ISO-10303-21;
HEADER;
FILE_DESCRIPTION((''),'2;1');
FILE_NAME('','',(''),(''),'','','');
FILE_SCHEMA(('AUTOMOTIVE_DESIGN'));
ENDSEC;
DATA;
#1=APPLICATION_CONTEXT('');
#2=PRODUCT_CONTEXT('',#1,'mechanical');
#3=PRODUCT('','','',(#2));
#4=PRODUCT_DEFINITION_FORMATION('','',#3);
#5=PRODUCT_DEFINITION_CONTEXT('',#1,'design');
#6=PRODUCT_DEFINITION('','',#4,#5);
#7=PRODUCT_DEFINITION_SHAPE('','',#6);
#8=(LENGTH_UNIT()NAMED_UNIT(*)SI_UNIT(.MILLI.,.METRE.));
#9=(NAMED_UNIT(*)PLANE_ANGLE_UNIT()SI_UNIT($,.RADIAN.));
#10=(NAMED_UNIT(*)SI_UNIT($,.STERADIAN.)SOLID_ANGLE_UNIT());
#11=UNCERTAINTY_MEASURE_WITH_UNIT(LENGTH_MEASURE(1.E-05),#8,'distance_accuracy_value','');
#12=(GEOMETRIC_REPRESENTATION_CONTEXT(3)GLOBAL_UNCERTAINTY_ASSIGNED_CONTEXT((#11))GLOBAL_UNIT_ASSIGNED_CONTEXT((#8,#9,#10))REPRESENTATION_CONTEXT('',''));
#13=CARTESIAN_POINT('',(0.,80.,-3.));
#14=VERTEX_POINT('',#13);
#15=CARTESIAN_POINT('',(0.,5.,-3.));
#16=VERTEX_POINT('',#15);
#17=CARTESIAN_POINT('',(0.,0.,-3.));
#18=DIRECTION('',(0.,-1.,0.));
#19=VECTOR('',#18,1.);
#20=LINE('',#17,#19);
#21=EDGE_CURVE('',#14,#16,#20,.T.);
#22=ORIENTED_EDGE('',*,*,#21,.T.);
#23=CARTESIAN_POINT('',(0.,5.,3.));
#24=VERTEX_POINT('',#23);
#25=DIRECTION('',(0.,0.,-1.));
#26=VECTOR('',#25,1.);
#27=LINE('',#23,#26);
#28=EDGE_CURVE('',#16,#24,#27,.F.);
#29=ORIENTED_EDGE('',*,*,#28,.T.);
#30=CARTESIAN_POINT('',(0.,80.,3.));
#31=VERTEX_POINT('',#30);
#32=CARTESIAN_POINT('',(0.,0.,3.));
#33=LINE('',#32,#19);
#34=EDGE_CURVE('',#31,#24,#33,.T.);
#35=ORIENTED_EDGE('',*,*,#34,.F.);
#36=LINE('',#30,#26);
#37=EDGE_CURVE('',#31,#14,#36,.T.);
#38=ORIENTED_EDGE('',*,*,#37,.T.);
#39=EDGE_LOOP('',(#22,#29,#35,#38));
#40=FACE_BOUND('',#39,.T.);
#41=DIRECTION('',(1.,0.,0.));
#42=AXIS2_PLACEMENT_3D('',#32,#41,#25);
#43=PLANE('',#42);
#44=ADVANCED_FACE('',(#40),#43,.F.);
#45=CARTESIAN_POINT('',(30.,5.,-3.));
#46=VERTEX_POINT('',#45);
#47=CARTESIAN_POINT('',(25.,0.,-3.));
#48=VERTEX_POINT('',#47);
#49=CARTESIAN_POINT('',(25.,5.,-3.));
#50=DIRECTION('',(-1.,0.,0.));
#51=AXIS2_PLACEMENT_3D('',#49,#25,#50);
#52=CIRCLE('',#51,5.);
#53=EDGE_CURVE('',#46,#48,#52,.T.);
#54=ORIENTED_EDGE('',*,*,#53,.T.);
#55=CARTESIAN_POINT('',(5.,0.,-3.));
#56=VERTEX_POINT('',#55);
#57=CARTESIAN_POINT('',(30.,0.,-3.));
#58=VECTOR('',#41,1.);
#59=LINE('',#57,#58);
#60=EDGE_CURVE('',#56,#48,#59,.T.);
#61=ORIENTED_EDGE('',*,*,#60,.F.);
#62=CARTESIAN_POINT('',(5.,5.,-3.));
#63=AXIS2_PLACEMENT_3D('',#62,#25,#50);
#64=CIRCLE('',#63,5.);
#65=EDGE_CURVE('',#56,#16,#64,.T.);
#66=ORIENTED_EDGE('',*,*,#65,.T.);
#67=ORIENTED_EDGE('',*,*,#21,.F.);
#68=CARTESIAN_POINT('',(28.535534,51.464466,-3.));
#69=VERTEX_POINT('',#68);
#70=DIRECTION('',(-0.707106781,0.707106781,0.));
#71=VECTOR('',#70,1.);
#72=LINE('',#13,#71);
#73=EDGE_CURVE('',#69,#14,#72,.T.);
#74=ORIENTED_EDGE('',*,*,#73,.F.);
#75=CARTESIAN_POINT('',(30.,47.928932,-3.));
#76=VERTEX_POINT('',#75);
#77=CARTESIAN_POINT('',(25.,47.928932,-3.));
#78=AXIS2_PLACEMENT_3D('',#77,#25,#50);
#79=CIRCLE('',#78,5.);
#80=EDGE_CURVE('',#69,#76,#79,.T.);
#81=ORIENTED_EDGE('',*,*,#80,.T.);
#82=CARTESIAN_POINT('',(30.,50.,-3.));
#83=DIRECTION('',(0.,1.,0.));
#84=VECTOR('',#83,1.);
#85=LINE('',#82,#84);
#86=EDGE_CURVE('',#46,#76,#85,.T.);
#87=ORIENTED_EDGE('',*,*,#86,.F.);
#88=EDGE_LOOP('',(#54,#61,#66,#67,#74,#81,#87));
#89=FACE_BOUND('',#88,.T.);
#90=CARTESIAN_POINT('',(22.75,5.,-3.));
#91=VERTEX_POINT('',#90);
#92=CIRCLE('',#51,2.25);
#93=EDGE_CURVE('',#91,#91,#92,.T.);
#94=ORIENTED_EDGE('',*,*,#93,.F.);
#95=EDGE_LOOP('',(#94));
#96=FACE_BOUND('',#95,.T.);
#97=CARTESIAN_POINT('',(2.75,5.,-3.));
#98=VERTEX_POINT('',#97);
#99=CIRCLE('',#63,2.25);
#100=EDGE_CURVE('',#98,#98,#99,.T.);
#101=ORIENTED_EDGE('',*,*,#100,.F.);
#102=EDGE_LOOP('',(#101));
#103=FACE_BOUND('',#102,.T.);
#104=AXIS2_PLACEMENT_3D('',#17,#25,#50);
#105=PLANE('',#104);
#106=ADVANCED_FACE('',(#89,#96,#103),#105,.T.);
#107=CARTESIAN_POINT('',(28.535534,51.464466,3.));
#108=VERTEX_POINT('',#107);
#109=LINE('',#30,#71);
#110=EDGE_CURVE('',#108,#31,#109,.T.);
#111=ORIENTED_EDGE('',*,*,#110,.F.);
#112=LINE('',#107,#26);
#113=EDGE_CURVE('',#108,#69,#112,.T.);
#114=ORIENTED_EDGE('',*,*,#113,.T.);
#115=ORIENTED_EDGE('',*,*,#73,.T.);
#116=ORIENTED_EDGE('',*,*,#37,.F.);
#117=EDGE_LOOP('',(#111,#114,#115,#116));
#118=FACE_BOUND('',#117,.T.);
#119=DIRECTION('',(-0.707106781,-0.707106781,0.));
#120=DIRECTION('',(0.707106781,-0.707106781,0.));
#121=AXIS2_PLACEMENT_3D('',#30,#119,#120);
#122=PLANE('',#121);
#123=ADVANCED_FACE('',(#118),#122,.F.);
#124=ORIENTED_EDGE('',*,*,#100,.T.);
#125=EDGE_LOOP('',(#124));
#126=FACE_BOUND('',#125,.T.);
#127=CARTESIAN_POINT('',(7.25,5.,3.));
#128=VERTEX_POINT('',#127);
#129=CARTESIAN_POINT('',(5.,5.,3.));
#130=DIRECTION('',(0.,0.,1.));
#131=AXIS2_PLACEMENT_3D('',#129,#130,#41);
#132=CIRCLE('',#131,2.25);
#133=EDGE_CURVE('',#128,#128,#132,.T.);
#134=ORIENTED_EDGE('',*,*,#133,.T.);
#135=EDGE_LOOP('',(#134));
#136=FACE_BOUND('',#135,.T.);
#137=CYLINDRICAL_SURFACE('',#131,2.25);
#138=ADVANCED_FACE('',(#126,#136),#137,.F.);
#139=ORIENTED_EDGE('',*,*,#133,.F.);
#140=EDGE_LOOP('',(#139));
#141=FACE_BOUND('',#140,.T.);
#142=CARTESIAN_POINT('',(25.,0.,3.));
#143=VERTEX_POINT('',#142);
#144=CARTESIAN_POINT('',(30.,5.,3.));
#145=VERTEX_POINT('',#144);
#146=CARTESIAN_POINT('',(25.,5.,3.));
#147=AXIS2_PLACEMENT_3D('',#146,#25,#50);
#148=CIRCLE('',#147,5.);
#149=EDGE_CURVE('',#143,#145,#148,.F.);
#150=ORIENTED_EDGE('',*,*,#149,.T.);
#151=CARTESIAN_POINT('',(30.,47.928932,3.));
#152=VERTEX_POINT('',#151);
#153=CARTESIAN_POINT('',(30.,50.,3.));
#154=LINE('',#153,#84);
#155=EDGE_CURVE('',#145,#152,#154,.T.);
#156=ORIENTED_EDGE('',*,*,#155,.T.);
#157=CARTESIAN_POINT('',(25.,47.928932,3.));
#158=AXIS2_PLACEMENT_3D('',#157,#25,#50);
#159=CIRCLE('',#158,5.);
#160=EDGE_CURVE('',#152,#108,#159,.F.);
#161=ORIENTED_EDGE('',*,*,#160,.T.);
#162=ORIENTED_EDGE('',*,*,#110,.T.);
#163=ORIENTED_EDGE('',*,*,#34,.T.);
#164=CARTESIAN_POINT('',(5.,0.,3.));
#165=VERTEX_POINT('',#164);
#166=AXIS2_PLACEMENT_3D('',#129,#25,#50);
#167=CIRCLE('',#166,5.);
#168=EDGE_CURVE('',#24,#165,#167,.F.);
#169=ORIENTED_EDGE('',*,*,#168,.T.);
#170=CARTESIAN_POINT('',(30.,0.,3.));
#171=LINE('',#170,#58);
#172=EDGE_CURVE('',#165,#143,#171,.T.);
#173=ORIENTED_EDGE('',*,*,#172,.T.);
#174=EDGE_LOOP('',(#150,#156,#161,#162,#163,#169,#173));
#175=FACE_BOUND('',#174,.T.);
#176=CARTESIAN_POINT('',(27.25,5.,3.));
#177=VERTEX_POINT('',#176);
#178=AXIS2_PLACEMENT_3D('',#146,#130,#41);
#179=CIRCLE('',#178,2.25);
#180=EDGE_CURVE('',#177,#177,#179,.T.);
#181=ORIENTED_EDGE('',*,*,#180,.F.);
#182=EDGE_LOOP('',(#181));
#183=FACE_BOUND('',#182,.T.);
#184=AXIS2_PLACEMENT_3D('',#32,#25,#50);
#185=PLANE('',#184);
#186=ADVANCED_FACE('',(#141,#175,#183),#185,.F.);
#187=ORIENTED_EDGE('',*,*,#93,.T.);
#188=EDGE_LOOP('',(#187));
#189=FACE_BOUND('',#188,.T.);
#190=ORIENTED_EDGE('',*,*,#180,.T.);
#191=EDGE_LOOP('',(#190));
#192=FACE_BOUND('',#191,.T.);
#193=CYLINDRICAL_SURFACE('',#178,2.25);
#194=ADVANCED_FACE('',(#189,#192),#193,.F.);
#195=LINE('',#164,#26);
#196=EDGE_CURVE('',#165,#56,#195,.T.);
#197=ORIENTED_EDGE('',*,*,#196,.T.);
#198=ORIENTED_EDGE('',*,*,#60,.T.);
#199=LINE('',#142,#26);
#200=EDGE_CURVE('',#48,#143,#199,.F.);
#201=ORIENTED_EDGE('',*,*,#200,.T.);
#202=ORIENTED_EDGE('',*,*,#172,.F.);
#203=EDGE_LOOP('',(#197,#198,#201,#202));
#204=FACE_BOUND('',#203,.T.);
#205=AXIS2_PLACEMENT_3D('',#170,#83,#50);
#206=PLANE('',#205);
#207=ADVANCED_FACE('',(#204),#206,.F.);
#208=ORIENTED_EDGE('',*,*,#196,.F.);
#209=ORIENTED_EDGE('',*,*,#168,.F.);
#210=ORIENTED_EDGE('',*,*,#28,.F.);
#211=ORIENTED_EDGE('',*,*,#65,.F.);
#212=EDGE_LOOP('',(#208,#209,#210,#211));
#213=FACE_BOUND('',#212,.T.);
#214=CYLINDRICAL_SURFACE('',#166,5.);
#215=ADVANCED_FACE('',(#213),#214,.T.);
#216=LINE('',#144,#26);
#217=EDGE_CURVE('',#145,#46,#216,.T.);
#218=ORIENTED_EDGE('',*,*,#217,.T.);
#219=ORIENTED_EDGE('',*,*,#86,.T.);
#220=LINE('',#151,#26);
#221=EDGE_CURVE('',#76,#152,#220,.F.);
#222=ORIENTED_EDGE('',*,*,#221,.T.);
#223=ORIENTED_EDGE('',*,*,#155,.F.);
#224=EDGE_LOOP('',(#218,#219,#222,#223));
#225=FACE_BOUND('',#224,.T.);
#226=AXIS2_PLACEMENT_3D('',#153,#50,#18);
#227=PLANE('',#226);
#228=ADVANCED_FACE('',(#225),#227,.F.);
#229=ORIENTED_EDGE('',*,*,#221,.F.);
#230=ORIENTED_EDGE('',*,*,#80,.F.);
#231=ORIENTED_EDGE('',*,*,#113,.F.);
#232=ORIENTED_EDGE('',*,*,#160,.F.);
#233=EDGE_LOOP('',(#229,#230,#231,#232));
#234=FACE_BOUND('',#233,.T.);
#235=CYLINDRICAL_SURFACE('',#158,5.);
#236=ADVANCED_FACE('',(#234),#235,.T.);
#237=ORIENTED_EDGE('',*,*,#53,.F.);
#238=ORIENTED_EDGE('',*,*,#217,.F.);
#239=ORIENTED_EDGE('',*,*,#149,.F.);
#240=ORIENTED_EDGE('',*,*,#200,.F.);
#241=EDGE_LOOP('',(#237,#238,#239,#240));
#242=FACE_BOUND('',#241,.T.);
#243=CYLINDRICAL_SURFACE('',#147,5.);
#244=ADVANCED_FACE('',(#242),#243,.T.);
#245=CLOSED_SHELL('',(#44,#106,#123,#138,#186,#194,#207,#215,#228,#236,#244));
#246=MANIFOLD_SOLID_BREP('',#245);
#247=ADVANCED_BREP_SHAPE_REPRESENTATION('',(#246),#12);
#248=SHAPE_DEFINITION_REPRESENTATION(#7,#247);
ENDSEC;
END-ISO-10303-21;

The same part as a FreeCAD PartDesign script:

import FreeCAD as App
import Part
import Sketcher

V = App.Vector
Q = App.Units.Quantity


def edges_at(feature, points):
    """Names of the edges that pass closest to the given points."""
    edges = feature.Shape.Edges
    near = lambda p: min(range(len(edges)), key=lambda i: edges[i].distToShape(Part.Vertex(*p))[0])
    return sorted({f"Edge{near(p) + 1}" for p in points})

doc = App.newDocument("Part")
params = doc.addObject("Spreadsheet::Sheet", "Params")
for row, (alias, value) in enumerate([
    ("sketch1_width", "30 mm"),
    ("sketch1_height", "80 mm"),
    ("sketch1_height2", "50 mm"),
    ("pad1_length", "6 mm"),
    ("sketch2_diameter", "4.5 mm"),
    ("hole_diameter", "4.5 mm"),
    ("fillet_radius", "5 mm"),
], start=1):
    params.set(f"A{row}", alias)
    params.set(f"B{row}", "=" + value)
    params.setAlias(f"B{row}", alias)

body = doc.addObject("PartDesign::Body", "Body")

sketch1 = body.newObject("Sketcher::SketchObject", "Sketch")
sketch1.AttachmentSupport = (doc.getObject("XY_Plane"), [""])
sketch1.MapMode = "FlatFace"
sketch1.addGeometry([
    Part.LineSegment(V(0, 80, 0), V(0, 0, 0)),
    Part.LineSegment(V(0, 0, 0), V(30, 0, 0)),
    Part.LineSegment(V(30, 0, 0), V(30, 50, 0)),
    Part.LineSegment(V(30, 50, 0), V(0, 80, 0)),
], False)
sketch1.addConstraint([
    Sketcher.Constraint("Coincident", 0, 2, 1, 1),
    Sketcher.Constraint("Coincident", 1, 2, 2, 1),
    Sketcher.Constraint("Coincident", 2, 2, 3, 1),
    Sketcher.Constraint("Coincident", 3, 2, 0, 1),
    Sketcher.Constraint("Vertical", 0),
    Sketcher.Constraint("Horizontal", 1),
    Sketcher.Constraint("Vertical", 2),
    Sketcher.Constraint("Coincident", 0, 2, -1, 1),
    Sketcher.Constraint("DistanceX", 1, 1, 1, 2, Q("30 mm")),
    Sketcher.Constraint("DistanceY", 0, 2, 0, 1, Q("80 mm")),
    Sketcher.Constraint("DistanceY", 2, 1, 2, 2, Q("50 mm")),
])
sketch1.setExpression("Constraints[8]", "Params.sketch1_width")
sketch1.setExpression("Constraints[9]", "Params.sketch1_height")
sketch1.setExpression("Constraints[10]", "Params.sketch1_height2")
pad1 = body.newObject("PartDesign::Pad", "Pad")
pad1.Profile = sketch1
pad1.setExpression("Length", "Params.pad1_length")
pad1.Midplane = True

sketch2 = body.newObject("Sketcher::SketchObject", "Sketch001")
sketch2.AttachmentSupport = (doc.getObject("XY_Plane"), [""])
sketch2.MapMode = "FlatFace"
sketch2.AttachmentOffset = App.Placement(V(0, 0, 3), App.Rotation())
sketch2.addGeometry([
    Part.Circle(V(5, 5, 0), V(0, 0, 1), 2.25),
    Part.Circle(V(25, 5, 0), V(0, 0, 1), 2.25),
], False)
sketch2.addConstraint([
    Sketcher.Constraint("Equal", 0, 1),
    Sketcher.Constraint("Horizontal", 0, 3, 1, 3),
    Sketcher.Constraint("Diameter", 0, Q("4.5 mm")),
    Sketcher.Constraint("DistanceX", -1, 1, 0, 3, Q("5 mm")),
    Sketcher.Constraint("DistanceY", -1, 1, 0, 3, Q("5 mm")),
    Sketcher.Constraint("DistanceX", -1, 1, 1, 3, Q("25 mm")),
])
sketch2.setExpression("Constraints[2]", "Params.sketch2_diameter")
doc.recompute()
hole = body.newObject("PartDesign::Hole", "Hole")
hole.Profile = sketch2
hole.ThreadType = "None"
hole.setExpression("Diameter", "Params.hole_diameter")
hole.DepthType = "ThroughAll"
doc.recompute()

fillet = body.newObject("PartDesign::Fillet", "Fillet")
fillet.Base = (hole, edges_at(hole, [(0, 0, 0), (30, 50, 0), (30, 0, 0)]))
fillet.setExpression("Radius", "Params.fillet_radius")

doc.recompute()
